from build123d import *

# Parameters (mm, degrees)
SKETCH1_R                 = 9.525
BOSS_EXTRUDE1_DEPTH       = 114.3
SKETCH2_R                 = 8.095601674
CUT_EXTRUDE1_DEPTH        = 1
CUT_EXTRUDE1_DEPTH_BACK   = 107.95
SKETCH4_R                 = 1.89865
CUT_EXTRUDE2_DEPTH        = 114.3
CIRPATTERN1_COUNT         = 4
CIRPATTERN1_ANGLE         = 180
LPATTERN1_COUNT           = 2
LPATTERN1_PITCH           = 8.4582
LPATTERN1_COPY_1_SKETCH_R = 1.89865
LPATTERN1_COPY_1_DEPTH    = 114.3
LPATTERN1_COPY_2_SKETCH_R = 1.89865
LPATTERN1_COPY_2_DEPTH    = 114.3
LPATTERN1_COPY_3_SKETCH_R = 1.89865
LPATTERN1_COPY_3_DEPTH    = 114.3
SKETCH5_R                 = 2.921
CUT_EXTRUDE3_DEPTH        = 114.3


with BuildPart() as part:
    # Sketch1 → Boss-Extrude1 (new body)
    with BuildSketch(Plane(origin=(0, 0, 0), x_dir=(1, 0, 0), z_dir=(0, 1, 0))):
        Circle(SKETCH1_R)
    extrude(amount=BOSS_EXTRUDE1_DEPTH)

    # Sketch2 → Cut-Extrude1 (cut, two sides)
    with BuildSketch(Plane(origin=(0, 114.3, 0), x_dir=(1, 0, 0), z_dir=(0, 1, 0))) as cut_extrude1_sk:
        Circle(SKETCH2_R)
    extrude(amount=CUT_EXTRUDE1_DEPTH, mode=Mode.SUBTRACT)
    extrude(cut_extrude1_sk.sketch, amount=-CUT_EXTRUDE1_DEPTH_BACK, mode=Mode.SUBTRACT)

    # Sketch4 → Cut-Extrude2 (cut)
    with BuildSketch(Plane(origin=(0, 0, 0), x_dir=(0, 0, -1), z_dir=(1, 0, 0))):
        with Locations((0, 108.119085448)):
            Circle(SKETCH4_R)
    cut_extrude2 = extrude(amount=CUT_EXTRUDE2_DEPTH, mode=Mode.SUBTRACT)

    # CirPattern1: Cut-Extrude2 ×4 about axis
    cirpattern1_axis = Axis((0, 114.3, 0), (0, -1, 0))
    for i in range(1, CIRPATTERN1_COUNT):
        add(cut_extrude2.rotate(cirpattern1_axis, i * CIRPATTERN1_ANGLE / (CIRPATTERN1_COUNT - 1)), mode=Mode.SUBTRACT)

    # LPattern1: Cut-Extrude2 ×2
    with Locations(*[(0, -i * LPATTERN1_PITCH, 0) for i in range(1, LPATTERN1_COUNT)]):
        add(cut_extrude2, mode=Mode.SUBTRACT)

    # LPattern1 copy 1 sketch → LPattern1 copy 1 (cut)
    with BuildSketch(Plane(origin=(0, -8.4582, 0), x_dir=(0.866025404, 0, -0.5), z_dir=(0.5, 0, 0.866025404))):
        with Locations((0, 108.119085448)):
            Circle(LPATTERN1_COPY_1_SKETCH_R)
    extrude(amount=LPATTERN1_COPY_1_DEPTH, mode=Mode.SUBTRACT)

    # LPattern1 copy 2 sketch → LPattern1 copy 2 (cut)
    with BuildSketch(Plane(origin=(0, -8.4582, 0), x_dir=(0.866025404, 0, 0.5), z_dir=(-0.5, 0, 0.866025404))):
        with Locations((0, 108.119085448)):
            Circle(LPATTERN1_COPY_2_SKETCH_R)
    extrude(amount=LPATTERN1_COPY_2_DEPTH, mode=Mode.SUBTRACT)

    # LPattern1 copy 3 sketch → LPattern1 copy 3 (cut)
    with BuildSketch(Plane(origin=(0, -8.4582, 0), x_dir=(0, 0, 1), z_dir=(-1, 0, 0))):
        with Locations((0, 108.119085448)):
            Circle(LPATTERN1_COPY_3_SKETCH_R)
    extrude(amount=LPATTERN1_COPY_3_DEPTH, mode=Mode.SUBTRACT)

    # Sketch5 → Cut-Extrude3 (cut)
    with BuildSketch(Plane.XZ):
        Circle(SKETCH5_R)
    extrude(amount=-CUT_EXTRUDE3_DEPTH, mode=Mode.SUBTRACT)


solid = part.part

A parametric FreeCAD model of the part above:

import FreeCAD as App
import Part
import Sketcher

V = App.Vector
Q = App.Units.Quantity

doc = App.newDocument("Part")
body = doc.addObject("PartDesign::Body", "Body")

sketch1 = doc.addObject("Sketcher::SketchObject", "Sketch")
body.addObject(sketch1)
sketch1.AttachmentSupport = (doc.XZ_Plane, [""])
sketch1.MapMode = "FlatFace"
sketch1.addGeometry(Part.Circle(V(0, 0, 0), V(0, 0, 1), 10), False)
sketch1.addConstraint(Sketcher.Constraint("Coincident", 0, 3, -1, 1))
sketch1.addConstraint(Sketcher.Constraint("Diameter", 0, Q("0.75 in")))
pad1 = doc.addObject("PartDesign::Pad", "Pad")
body.addObject(pad1)
pad1.Profile = sketch1
pad1.Length = Q("4.5 in")
pad1.Reversed = True

sketch2 = doc.addObject("Sketcher::SketchObject", "Sketch001")
body.addObject(sketch2)
sketch2.AttachmentSupport = (doc.XZ_Plane, [""])
sketch2.MapMode = "FlatFace"
sketch2.AttachmentOffset = App.Placement(V(0, 0, -4.5 * 25.4), App.Rotation())
sketch2.addGeometry(Part.Circle(V(0, 0, 0), V(0, 0, 1), 8), False)
sketch2.addConstraint(Sketcher.Constraint("Coincident", 0, 3, -1, 1))
sketch2.addConstraint(Sketcher.Constraint("Diameter", 0, Q("16.191203 mm")))
pocket1 = doc.addObject("PartDesign::Pocket", "Pocket")
body.addObject(pocket1)
pocket1.Profile = sketch2
pocket1.Type = "TwoLengths"
pocket1.Length = 1
pocket1.Length2 = Q("4.25 in")

sketch3 = doc.addObject("Sketcher::SketchObject", "Sketch002")
body.addObject(sketch3)
sketch3.AttachmentSupport = (doc.YZ_Plane, [""])
sketch3.MapMode = "FlatFace"
sketch3.addGeometry(Part.Circle(V(108.1, 0, 0), V(0, 0, 1), 1.9), False)
sketch3.addConstraint(Sketcher.Constraint("PointOnObject", 0, 3, -1))
sketch3.addConstraint(Sketcher.Constraint("Diameter", 0, Q("0.1495 in")))
sketch3.addConstraint(Sketcher.Constraint("DistanceX", -1, 1, 0, 3, Q("108.119085 mm")))
pocket2 = doc.addObject("PartDesign::Pocket", "Pocket001")
body.addObject(pocket2)
pocket2.Profile = sketch3
pocket2.Length = Q("4.5 in")
pocket2.Reversed = True
doc.recompute()

polarpattern = doc.addObject("PartDesign::PolarPattern", "PolarPattern")
body.addObject(polarpattern)
polarpattern.Originals = [pocket2]
polarpattern.Axis = (doc.Y_Axis, [""])
polarpattern.Angle = 180
polarpattern.Occurrences = 4
polarpattern.Reversed = True
body.Tip = polarpattern
doc.recompute()

linearpattern = doc.addObject("PartDesign::LinearPattern", "LinearPattern")
body.addObject(linearpattern)
linearpattern.Originals = [pocket2]
linearpattern.Direction = (doc.Y_Axis, [""])
linearpattern.Mode = "offset"
linearpattern.Offset = Q("0.333 in")
linearpattern.Occurrences = 2
linearpattern.Reversed = True
body.Tip = linearpattern

sketch4 = doc.addObject("Sketcher::SketchObject", "Sketch003")
body.addObject(sketch4)
sketch4.Placement = App.Placement(V(0, -8.4582, 0), App.Rotation(V(0.866025404, 0, -0.5), V(0, 1, 0), V(0.5, 0, 0.866025404), "ZXY"))
sketch4.addGeometry(Part.Circle(V(0, 108.1, 0), V(0, 0, 1), 1.9), False)
sketch4.addConstraint(Sketcher.Constraint("PointOnObject", 0, 3, -2))
sketch4.addConstraint(Sketcher.Constraint("Diameter", 0, Q("0.1495 in")))
sketch4.addConstraint(Sketcher.Constraint("DistanceY", -1, 1, 0, 3, Q("108.119086 mm")))
pocket3 = doc.addObject("PartDesign::Pocket", "Pocket002")
body.addObject(pocket3)
pocket3.Profile = sketch4
pocket3.Length = Q("4.5 in")
pocket3.Reversed = True

sketch5 = doc.addObject("Sketcher::SketchObject", "Sketch004")
body.addObject(sketch5)
sketch5.Placement = App.Placement(V(0, -8.4582, 0), App.Rotation(V(0.866025404, 0, 0.5), V(0, 1, 0), V(-0.5, 0, 0.866025404), "ZXY"))
sketch5.addGeometry(Part.Circle(V(0, 108.1, 0), V(0, 0, 1), 1.9), False)
sketch5.addConstraint(Sketcher.Constraint("PointOnObject", 0, 3, -2))
sketch5.addConstraint(Sketcher.Constraint("Diameter", 0, Q("0.1495 in")))
sketch5.addConstraint(Sketcher.Constraint("DistanceY", -1, 1, 0, 3, Q("108.119086 mm")))
pocket4 = doc.addObject("PartDesign::Pocket", "Pocket003")
body.addObject(pocket4)
pocket4.Profile = sketch5
pocket4.Length = Q("4.5 in")
pocket4.Reversed = True

sketch6 = doc.addObject("Sketcher::SketchObject", "Sketch005")
body.addObject(sketch6)
sketch6.AttachmentSupport = (doc.YZ_Plane, [""])
sketch6.MapMode = "FlatFace"
sketch6.addGeometry(Part.Circle(V(99.7, 0, 0), V(0, 0, 1), 1.9), False)
sketch6.addConstraint(Sketcher.Constraint("PointOnObject", 0, 3, -1))
sketch6.addConstraint(Sketcher.Constraint("Diameter", 0, Q("0.1495 in")))
sketch6.addConstraint(Sketcher.Constraint("DistanceX", -1, 1, 0, 3, Q("99.660885 mm")))
pocket5 = doc.addObject("PartDesign::Pocket", "Pocket004")
body.addObject(pocket5)
pocket5.Profile = sketch6
pocket5.Length = Q("4.5 in")

sketch7 = doc.addObject("Sketcher::SketchObject", "Sketch006")
body.addObject(sketch7)
sketch7.AttachmentSupport = (doc.XZ_Plane, [""])
sketch7.MapMode = "FlatFace"
sketch7.addGeometry(Part.Circle(V(0, 0, 0), V(0, 0, 1), 2.9), False)
sketch7.addConstraint(Sketcher.Constraint("Coincident", 0, 3, -1, 1))
sketch7.addConstraint(Sketcher.Constraint("Diameter", 0, Q("0.23 in")))
pocket6 = doc.addObject("PartDesign::Pocket", "Pocket005")
body.addObject(pocket6)
pocket6.Profile = sketch7
pocket6.Length = Q("4.5 in")

doc.recompute()
